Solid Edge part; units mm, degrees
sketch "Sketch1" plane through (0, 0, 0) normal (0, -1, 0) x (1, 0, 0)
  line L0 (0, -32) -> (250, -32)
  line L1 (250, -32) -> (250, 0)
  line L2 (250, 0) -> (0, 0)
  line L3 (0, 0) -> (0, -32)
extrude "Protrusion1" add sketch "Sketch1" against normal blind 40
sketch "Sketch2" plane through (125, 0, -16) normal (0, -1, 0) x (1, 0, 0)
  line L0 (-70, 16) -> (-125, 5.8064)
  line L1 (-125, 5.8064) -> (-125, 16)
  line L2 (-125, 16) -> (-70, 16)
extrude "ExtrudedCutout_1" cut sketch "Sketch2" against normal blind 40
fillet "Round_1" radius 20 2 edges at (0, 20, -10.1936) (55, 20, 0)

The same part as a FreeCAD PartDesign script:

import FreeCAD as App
import Part
import Sketcher

V = App.Vector
Q = App.Units.Quantity


def edges_at(feature, points):
    """Names of the edges that pass closest to the given points."""
    edges = feature.Shape.Edges
    near = lambda p: min(range(len(edges)), key=lambda i: edges[i].distToShape(Part.Vertex(*p))[0])
    return sorted({f"Edge{near(p) + 1}" for p in points})


def add_polygon(sketch, points):
    """Adds a closed chain of lines whose ends are joined by coincident constraints."""
    first, n = sketch.GeometryCount, len(points)
    for a, b in zip(points, points[1:] + points[:1]):
        sketch.addGeometry(Part.LineSegment(App.Vector(*a, 0), App.Vector(*b, 0)), False)
    for i in range(n):
        sketch.addConstraint(Sketcher.Constraint("Coincident", first + i, 2, first + (i + 1) % n, 1))

doc = App.newDocument("Part")
body = doc.addObject("PartDesign::Body", "Body")

# Sketch on XZ plane
sketch1 = body.newObject("Sketcher::SketchObject", "Sketch")
sketch1.AttachmentSupport = (doc.getObject("XZ_Plane"), [""])
sketch1.MapMode = "FlatFace"
add_polygon(sketch1, [(0, 0), (0, -32), (250, -32), (250, 0)])  # lines 0-3
sketch1.addConstraint(Sketcher.Constraint("Vertical", 0))
sketch1.addConstraint(Sketcher.Constraint("Horizontal", 1))
sketch1.addConstraint(Sketcher.Constraint("Vertical", 2))
sketch1.addConstraint(Sketcher.Constraint("Horizontal", 3))
sketch1.addConstraint(Sketcher.Constraint("Coincident", 3, 2, -1, 1))
sketch1.addConstraint(Sketcher.Constraint("DistanceX", 1, 1, 1, 2, Q("250 mm")))
sketch1.addConstraint(Sketcher.Constraint("DistanceY", 0, 2, 0, 1, Q("32 mm")))
pad1 = body.newObject("PartDesign::Pad", "Pad")
pad1.Profile = sketch1
pad1.Length = 40
pad1.Reversed = True

# Sketch on XZ plane
sketch2 = body.newObject("Sketcher::SketchObject", "Sketch001")
sketch2.AttachmentSupport = (doc.getObject("XZ_Plane"), [""])
sketch2.MapMode = "FlatFace"
add_polygon(sketch2, [(0, -10), (55, 0), (0, 0)])  # lines 0-2
sketch2.addConstraint(Sketcher.Constraint("Horizontal", 1))
sketch2.addConstraint(Sketcher.Constraint("Vertical", 2))
sketch2.addConstraint(Sketcher.Constraint("Coincident", 1, 2, -1, 1))
sketch2.addConstraint(Sketcher.Constraint("DistanceX", 1, 2, 1, 1, Q("55 mm")))
sketch2.addConstraint(Sketcher.Constraint("Angle", 0, Q("10.5 deg")))
pocket1 = body.newObject("PartDesign::Pocket", "Pocket")
pocket1.Profile = sketch2
pocket1.Length = 40
doc.recompute()

fillet = body.newObject("PartDesign::Fillet", "Fillet")
fillet.Base = (pocket1, edges_at(pocket1, [(0, 20, -10.194), (55, 20, 0)]))
fillet.Radius = 20

doc.recompute()
